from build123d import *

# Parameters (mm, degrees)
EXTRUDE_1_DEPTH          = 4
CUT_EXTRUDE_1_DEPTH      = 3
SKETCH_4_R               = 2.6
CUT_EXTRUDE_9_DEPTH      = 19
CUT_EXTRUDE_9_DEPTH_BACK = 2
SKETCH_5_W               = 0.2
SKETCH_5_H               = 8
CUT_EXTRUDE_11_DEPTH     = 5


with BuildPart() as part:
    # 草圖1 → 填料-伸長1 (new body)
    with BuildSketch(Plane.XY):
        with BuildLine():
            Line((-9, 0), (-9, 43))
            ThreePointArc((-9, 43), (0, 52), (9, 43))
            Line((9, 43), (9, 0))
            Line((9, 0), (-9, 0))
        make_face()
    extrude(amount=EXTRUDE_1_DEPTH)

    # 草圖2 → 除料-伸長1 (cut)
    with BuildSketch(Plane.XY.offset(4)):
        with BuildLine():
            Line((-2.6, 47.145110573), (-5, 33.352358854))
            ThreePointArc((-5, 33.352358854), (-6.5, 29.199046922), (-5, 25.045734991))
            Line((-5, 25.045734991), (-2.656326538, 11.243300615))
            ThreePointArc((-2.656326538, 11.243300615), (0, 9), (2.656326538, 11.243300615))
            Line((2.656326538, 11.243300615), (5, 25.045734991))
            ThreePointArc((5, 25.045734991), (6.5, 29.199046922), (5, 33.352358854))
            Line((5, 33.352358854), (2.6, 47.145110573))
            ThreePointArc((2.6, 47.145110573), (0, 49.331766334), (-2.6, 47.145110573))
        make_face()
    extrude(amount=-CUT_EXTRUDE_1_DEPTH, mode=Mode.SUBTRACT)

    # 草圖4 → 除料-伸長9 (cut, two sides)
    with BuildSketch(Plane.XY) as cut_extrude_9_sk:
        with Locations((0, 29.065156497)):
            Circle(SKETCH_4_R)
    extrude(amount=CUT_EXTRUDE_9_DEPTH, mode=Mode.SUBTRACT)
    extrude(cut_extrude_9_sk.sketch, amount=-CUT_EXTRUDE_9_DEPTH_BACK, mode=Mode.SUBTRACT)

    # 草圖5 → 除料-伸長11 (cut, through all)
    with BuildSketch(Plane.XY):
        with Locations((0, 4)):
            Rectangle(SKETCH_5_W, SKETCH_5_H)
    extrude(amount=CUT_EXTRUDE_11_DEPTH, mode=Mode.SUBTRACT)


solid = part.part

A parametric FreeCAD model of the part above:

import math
import FreeCAD as App
import Part
import Sketcher
from FreeCAD import Vector


def add_polygon(sketch, points):
    """Adds a closed chain of lines whose ends are joined by coincident constraints."""
    first, n = sketch.GeometryCount, len(points)
    for a, b in zip(points, points[1:] + points[:1]):
        sketch.addGeometry(Part.LineSegment(App.Vector(*a, 0), App.Vector(*b, 0)), False)
    for i in range(n):
        sketch.addConstraint(Sketcher.Constraint("Coincident", first + i, 2, first + (i + 1) % n, 1))

doc = App.newDocument("Part")
params = doc.addObject("Spreadsheet::Sheet", "Params")
for row, (alias, value) in enumerate([
    ("sketch1_radius", "9 mm"),
    ("sketch1_height", "43 mm"),
    ("pad1_length", "4 mm"),
    ("sketch2_radius", "6.5 mm"),
    ("sketch2_length", "14 mm"),
    ("pocket1_length", "3 mm"),
    ("sketch3_diameter", "5.2 mm"),
    ("sketch4_height", "8 mm"),
    ("sketch4_width", "0.2 mm"),
], start=1):
    params.set(f"A{row}", alias)
    params.set(f"B{row}", "=" + value)
    params.setAlias(f"B{row}", alias)

body = doc.addObject("PartDesign::Body", "Body")

# Sketch on XY plane
sketch1 = body.newObject("Sketcher::SketchObject", "Sketch")
sketch1.AttachmentSupport = (doc.getObject("XY_Plane"), [""])
sketch1.MapMode = "FlatFace"
sketch1.addGeometry(Part.LineSegment(Vector(-9, 43, 0), Vector(-9, 0, 0)), False)
sketch1.addGeometry(Part.LineSegment(Vector(-9, 0, 0), Vector(9, 0, 0)), False)
sketch1.addGeometry(Part.LineSegment(Vector(9, 0, 0), Vector(9, 43, 0)), False)
sketch1.addGeometry(Part.ArcOfCircle(Part.Circle(Vector(0, 43, 0), Vector(0, 0, 1), 9), math.radians(0), math.radians(180)), False)
sketch1.addConstraint(Sketcher.Constraint("Coincident", 0, 2, 1, 1))
sketch1.addConstraint(Sketcher.Constraint("Coincident", 1, 2, 2, 1))
sketch1.addConstraint(Sketcher.Constraint("Tangent", 2, 2, 3, 1))
sketch1.addConstraint(Sketcher.Constraint("Tangent", 3, 2, 0, 1))
sketch1.addConstraint(Sketcher.Constraint("Vertical", 0))
sketch1.addConstraint(Sketcher.Constraint("Horizontal", 1))
sketch1.addConstraint(Sketcher.Constraint("Vertical", 2))
sketch1.addConstraint(Sketcher.Constraint("Symmetric", 0, 2, 1, 2, -1, 1))
sketch1.addConstraint(Sketcher.Constraint("Radius", 3, 9.0))
sketch1.addConstraint(Sketcher.Constraint("DistanceY", 0, 2, 0, 1, 43.0))
sketch1.setExpression("Constraints[8]", "Params.sketch1_radius")
sketch1.setExpression("Constraints[9]", "Params.sketch1_height")
pad1 = body.newObject("PartDesign::Pad", "Pad")
pad1.Profile = sketch1
pad1.setExpression("Length", "Params.pad1_length")

# Sketch on XY plane
sketch2 = body.newObject("Sketcher::SketchObject", "Sketch001")
sketch2.AttachmentSupport = (doc.getObject("XY_Plane"), [""])
sketch2.MapMode = "FlatFace"
sketch2.AttachmentOffset = App.Placement(Vector(0, 0, 4), App.Rotation())
sketch2.addGeometry(Part.LineSegment(Vector(-2.6, 47.1, 0), Vector(-5, 33.4, 0)), False)
sketch2.addGeometry(Part.ArcOfCircle(Part.Circle(Vector(0, 29.2, 0), Vector(0, 0, 1), 6.5), math.radians(140), math.radians(220)), False)
sketch2.addGeometry(Part.LineSegment(Vector(-5, 25, 0), Vector(-2.7, 11.2, 0)), False)
sketch2.addGeometry(Part.ArcOfCircle(Part.Circle(Vector(0, 11.7, 0), Vector(0, 0, 1), 2.7), math.radians(-170), math.radians(-10)), False)
sketch2.addGeometry(Part.LineSegment(Vector(2.7, 11.2, 0), Vector(5, 25, 0)), False)
sketch2.addGeometry(Part.ArcOfCircle(Part.Circle(Vector(0, 29.2, 0), Vector(0, 0, 1), 6.5), math.radians(-40), math.radians(40)), False)
sketch2.addGeometry(Part.LineSegment(Vector(5, 33.4, 0), Vector(2.6, 47.1, 0)), False)
sketch2.addGeometry(Part.ArcOfCircle(Part.Circle(Vector(0, 46.7, 0), Vector(0, 0, 1), 2.6), math.radians(10), math.radians(170)), False)
sketch2.addConstraint(Sketcher.Constraint("Coincident", 0, 2, 1, 1))
sketch2.addConstraint(Sketcher.Constraint("Coincident", 1, 2, 2, 1))
sketch2.addConstraint(Sketcher.Constraint("Tangent", 2, 2, 3, 1))
sketch2.addConstraint(Sketcher.Constraint("Tangent", 3, 2, 4, 1))
sketch2.addConstraint(Sketcher.Constraint("Coincident", 4, 2, 5, 1))
sketch2.addConstraint(Sketcher.Constraint("Coincident", 5, 2, 6, 1))
sketch2.addConstraint(Sketcher.Constraint("Tangent", 6, 2, 7, 1))
sketch2.addConstraint(Sketcher.Constraint("Tangent", 7, 2, 0, 1))
sketch2.addConstraint(Sketcher.Constraint("Coincident", 5, 3, 1, 3))
sketch2.addConstraint(Sketcher.Constraint("Equal", 1, 5))
sketch2.addConstraint(Sketcher.Constraint("Symmetric", 2, 2, 3, 2, -2))
sketch2.addConstraint(Sketcher.Constraint("Symmetric", 0, 2, 5, 2, -2))
sketch2.addConstraint(Sketcher.Constraint("PointOnObject", 7, 3, -2))
sketch2.addConstraint(Sketcher.Constraint("Vertical", 0, 2, 1, 2))
sketch2.addConstraint(Sketcher.Constraint("Equal", 0, 2))
sketch2.addConstraint(Sketcher.Constraint("Radius", 1, 6.5))
sketch2.addConstraint(Sketcher.Constraint("Distance", 0, 14.0))
sketch2.addConstraint(Sketcher.Constraint("DistanceX", 0, 2, -1, 1, 5.0))
sketch2.addConstraint(Sketcher.Constraint("DistanceX", -1, 1, 6, 2, 2.6))
sketch2.addConstraint(Sketcher.Constraint("Radius", 3, 2.694349))
sketch2.addConstraint(Sketcher.Constraint("DistanceY", -1, 1, 7, 3, 46.692699))
sketch2.setExpression("Constraints[15]", "Params.sketch2_radius")
sketch2.setExpression("Constraints[16]", "Params.sketch2_length")
pocket1 = body.newObject("PartDesign::Pocket", "Pocket")
pocket1.Profile = sketch2
pocket1.setExpression("Length", "Params.pocket1_length")

# Sketch on XY plane
sketch3 = body.newObject("Sketcher::SketchObject", "Sketch002")
sketch3.AttachmentSupport = (doc.getObject("XY_Plane"), [""])
sketch3.MapMode = "FlatFace"
sketch3.addGeometry(Part.Circle(Vector(0, 29.1, 0), Vector(0, 0, 1), 2.6), False)
sketch3.addConstraint(Sketcher.Constraint("PointOnObject", 0, 3, -2))
sketch3.addConstraint(Sketcher.Constraint("Diameter", 0, 5.2))
sketch3.addConstraint(Sketcher.Constraint("DistanceY", -1, 1, 0, 3, 29.065156))
sketch3.setExpression("Constraints[1]", "Params.sketch3_diameter")
pocket2 = body.newObject("PartDesign::Pocket", "Pocket001")
pocket2.Profile = sketch3
pocket2.Type = "ThroughAll"
pocket2.Midplane = True

# Sketch on XY plane
sketch4 = body.newObject("Sketcher::SketchObject", "Sketch003")
sketch4.AttachmentSupport = (doc.getObject("XY_Plane"), [""])
sketch4.MapMode = "FlatFace"
add_polygon(sketch4, [(-0.1, 8), (-0.1, 0), (0.1, 0), (0.1, 8)])  # lines 0-3
sketch4.addConstraint(Sketcher.Constraint("Vertical", 0))
sketch4.addConstraint(Sketcher.Constraint("Horizontal", 1))
sketch4.addConstraint(Sketcher.Constraint("Vertical", 2))
sketch4.addConstraint(Sketcher.Constraint("Horizontal", 3))
sketch4.addConstraint(Sketcher.Constraint("Symmetric", 0, 2, 1, 2, -1, 1))
sketch4.addConstraint(Sketcher.Constraint("DistanceY", 0, 2, 0, 1, 8.0))
sketch4.addConstraint(Sketcher.Constraint("DistanceX", 1, 1, 1, 2, 0.2))
sketch4.setExpression("Constraints[9]", "Params.sketch4_height")
sketch4.setExpression("Constraints[10]", "Params.sketch4_width")
pocket3 = body.newObject("PartDesign::Pocket", "Pocket002")
pocket3.Profile = sketch4
pocket3.Type = "ThroughAll"
pocket3.Reversed = True

doc.recompute()
